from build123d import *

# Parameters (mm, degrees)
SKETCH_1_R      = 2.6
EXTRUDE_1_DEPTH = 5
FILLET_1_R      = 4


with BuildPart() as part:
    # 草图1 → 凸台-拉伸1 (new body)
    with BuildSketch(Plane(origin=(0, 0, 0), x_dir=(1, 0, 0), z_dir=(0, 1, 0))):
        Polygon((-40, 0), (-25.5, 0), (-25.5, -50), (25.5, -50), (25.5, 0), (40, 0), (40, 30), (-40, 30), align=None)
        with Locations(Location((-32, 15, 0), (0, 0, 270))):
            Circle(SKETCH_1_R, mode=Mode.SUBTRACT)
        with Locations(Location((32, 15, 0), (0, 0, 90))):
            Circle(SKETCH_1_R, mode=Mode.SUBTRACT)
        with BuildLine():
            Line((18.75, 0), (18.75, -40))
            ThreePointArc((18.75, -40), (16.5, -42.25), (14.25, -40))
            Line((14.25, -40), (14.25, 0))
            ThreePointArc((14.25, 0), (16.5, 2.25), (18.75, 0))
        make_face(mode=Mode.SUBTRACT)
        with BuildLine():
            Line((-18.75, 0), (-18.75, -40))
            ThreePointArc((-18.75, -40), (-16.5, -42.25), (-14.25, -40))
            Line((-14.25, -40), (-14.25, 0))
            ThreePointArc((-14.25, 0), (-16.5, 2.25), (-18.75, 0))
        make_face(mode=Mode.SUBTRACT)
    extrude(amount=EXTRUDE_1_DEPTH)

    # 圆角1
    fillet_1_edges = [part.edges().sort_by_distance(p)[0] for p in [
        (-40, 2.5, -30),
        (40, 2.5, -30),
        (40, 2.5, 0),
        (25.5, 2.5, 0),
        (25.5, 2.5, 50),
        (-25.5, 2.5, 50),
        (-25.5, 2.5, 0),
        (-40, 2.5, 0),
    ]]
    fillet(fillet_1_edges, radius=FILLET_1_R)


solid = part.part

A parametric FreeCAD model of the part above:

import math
import FreeCAD as App
import Part
import Sketcher


def edges_at(feature, points):
    """Names of the edges that pass closest to the given points."""
    edges = feature.Shape.Edges
    near = lambda p: min(range(len(edges)), key=lambda i: edges[i].distToShape(Part.Vertex(*p))[0])
    return sorted({f"Edge{near(p) + 1}" for p in points})


def add_polygon(sketch, points):
    """Adds a closed chain of lines whose ends are joined by coincident constraints."""
    first, n = sketch.GeometryCount, len(points)
    for a, b in zip(points, points[1:] + points[:1]):
        sketch.addGeometry(Part.LineSegment(App.Vector(*a, 0), App.Vector(*b, 0)), False)
    for i in range(n):
        sketch.addConstraint(Sketcher.Constraint("Coincident", first + i, 2, first + (i + 1) % n, 1))

doc = App.newDocument("Part")
body = doc.addObject("PartDesign::Body", "Body")

sketch1 = body.newObject("Sketcher::SketchObject", "Sketch")
sketch1.AttachmentSupport = (doc.getObject("XZ_Plane"), [""])
sketch1.MapMode = "FlatFace"
add_polygon(sketch1, [(-40, 0), (-25.5, 0), (-25.5, 50), (25.5, 50), (25.5, 0), (40, 0), (40, -30), (-40, -30)])
sketch1.addGeometry(Part.LineSegment(App.Vector(-18.75, 40, 0), App.Vector(-18.75, 0, 0)), False)
sketch1.addGeometry(Part.ArcOfCircle(Part.Circle(App.Vector(-16.5, 0, 0), App.Vector(0, 0, 1), 2.25), math.radians(180), math.radians(360)), False)
sketch1.addGeometry(Part.LineSegment(App.Vector(-14.25, 0, 0), App.Vector(-14.25, 40, 0)), False)
sketch1.addGeometry(Part.ArcOfCircle(Part.Circle(App.Vector(-16.5, 40, 0), App.Vector(0, 0, 1), 2.25), math.radians(0), math.radians(180)), False)
sketch1.addGeometry(Part.ArcOfCircle(Part.Circle(App.Vector(16.5, 0, 0), App.Vector(0, 0, 1), 2.25), math.radians(180), math.radians(360)), False)
sketch1.addGeometry(Part.LineSegment(App.Vector(18.75, 0, 0), App.Vector(18.75, 40, 0)), False)
sketch1.addGeometry(Part.ArcOfCircle(Part.Circle(App.Vector(16.5, 40, 0), App.Vector(0, 0, 1), 2.25), math.radians(0), math.radians(180)), False)
sketch1.addGeometry(Part.LineSegment(App.Vector(14.25, 40, 0), App.Vector(14.25, 0, 0)), False)
sketch1.addGeometry(Part.Circle(App.Vector(-32, -15, 0), App.Vector(0, 0, 1), 2.6), False)
sketch1.addGeometry(Part.Circle(App.Vector(32, -15, 0), App.Vector(0, 0, 1), 2.6), False)
sketch1.addConstraint([
    Sketcher.Constraint("Tangent", 8, 2, 9, 1),
    Sketcher.Constraint("Tangent", 9, 2, 10, 1),
    Sketcher.Constraint("Tangent", 10, 2, 11, 1),
    Sketcher.Constraint("Tangent", 11, 2, 8, 1),
    Sketcher.Constraint("Tangent", 12, 2, 13, 1),
    Sketcher.Constraint("Tangent", 13, 2, 14, 1),
    Sketcher.Constraint("Tangent", 14, 2, 15, 1),
    Sketcher.Constraint("Tangent", 15, 2, 12, 1),
    Sketcher.Constraint("Horizontal", 0),
    Sketcher.Constraint("Vertical", 1),
    Sketcher.Constraint("Horizontal", 2),
    Sketcher.Constraint("Vertical", 3),
    Sketcher.Constraint("Horizontal", 4),
    Sketcher.Constraint("Vertical", 5),
    Sketcher.Constraint("Horizontal", 6),
    Sketcher.Constraint("Vertical", 7),
    Sketcher.Constraint("Vertical", 8),
    Sketcher.Constraint("Vertical", 10),
    Sketcher.Constraint("Vertical", 13),
    Sketcher.Constraint("Vertical", 15),
    Sketcher.Constraint("Equal", 11, 12),
    Sketcher.Constraint("Equal", 16, 17),
    Sketcher.Constraint("Symmetric", 9, 3, 12, 3, -1, 1),
    Sketcher.Constraint("Symmetric", 0, 2, 3, 2, -1, 1),
    Sketcher.Constraint("Symmetric", 16, 3, 17, 3, -2),
    Sketcher.Constraint("Symmetric", 4, 2, 7, 2, -2),
    Sketcher.Constraint("PointOnObject", 9, 3, -1),
    Sketcher.Constraint("Horizontal", 11, 3, 14, 3),
    Sketcher.Constraint("Diameter", 16, 5.2),
    Sketcher.Constraint("DistanceX", 2, 1, 2, 2, 51.0),
    Sketcher.Constraint("DistanceX", 6, 2, 6, 1, 80.0),
    Sketcher.Constraint("DistanceY", 1, 1, 1, 2, 50.0),
    Sketcher.Constraint("DistanceY", 5, 2, 5, 1, 30.0),
    Sketcher.Constraint("DistanceY", 8, 2, 8, 1, 40.0),
    Sketcher.Constraint("Radius", 9, 2.25),
    Sketcher.Constraint("DistanceX", 16, 3, -1, 1, 32.0),
    Sketcher.Constraint("DistanceY", 16, 3, -1, 1, 15.0),
    Sketcher.Constraint("DistanceX", 9, 3, 12, 3, 33.0),
])
pad1 = body.newObject("PartDesign::Pad", "Pad")
pad1.Profile = sketch1
pad1.Length = 5
pad1.Reversed = True
doc.recompute()

fillet = body.newObject("PartDesign::Fillet", "Fillet")
fillet.Base = (pad1, edges_at(pad1, [
    (-40, 2.5, -30),
    (40, 2.5, -30),
    (40, 2.5, 0),
    (25.5, 2.5, 0),
    (25.5, 2.5, 50),
    (-25.5, 2.5, 50),
    (-25.5, 2.5, 0),
    (-40, 2.5, 0),
]))
fillet.Radius = 4

doc.recompute()
